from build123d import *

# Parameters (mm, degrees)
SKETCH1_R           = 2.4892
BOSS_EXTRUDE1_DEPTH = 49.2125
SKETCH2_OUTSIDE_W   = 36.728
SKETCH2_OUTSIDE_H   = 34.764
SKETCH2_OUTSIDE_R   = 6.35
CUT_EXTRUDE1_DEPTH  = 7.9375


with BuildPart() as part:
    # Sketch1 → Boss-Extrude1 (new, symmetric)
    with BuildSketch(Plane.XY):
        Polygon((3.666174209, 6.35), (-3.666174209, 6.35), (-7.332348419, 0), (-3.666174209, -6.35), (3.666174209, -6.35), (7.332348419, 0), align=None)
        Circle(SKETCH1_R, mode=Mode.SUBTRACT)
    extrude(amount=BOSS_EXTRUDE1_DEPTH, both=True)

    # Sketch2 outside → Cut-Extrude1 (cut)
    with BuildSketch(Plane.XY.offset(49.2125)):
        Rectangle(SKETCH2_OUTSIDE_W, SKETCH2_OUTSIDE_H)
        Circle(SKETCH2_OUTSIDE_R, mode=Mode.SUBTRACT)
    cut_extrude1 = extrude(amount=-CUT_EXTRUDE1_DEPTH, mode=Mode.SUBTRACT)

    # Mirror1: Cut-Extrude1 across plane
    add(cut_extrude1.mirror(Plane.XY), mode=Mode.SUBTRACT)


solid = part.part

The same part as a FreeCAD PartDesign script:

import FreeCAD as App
import Part
import Sketcher
from FreeCAD import Vector
Q = App.Units.Quantity

doc = App.newDocument("Part")
body = doc.addObject("PartDesign::Body", "Body")

sketch1 = body.newObject("Sketcher::SketchObject", "Sketch")
sketch1.AttachmentSupport = (doc.getObject("XY_Plane"), [""])
sketch1.MapMode = "FlatFace"
sketch1.addGeometry(Part.LineSegment(Vector(3.7, 6.3, 0), Vector(-3.7, 6.3, 0)), False)
sketch1.addGeometry(Part.LineSegment(Vector(-3.7, 6.3, 0), Vector(-7.3, 0, 0)), False)
sketch1.addGeometry(Part.LineSegment(Vector(-7.3, 0, 0), Vector(-3.7, -6.3, 0)), False)
sketch1.addGeometry(Part.LineSegment(Vector(-3.7, -6.3, 0), Vector(3.7, -6.3, 0)), False)
sketch1.addGeometry(Part.LineSegment(Vector(3.7, -6.3, 0), Vector(7.3, 0, 0)), False)
sketch1.addGeometry(Part.LineSegment(Vector(7.3, 0, 0), Vector(3.7, 6.3, 0)), False)
sketch1.addGeometry(Part.Circle(Vector(0, 0, 0), Vector(0, 0, 1), 2.5), False)
sketch1.addConstraint(Sketcher.Constraint("Coincident", 0, 2, 1, 1))
sketch1.addConstraint(Sketcher.Constraint("Coincident", 1, 2, 2, 1))
sketch1.addConstraint(Sketcher.Constraint("Coincident", 2, 2, 3, 1))
sketch1.addConstraint(Sketcher.Constraint("Coincident", 3, 2, 4, 1))
sketch1.addConstraint(Sketcher.Constraint("Coincident", 4, 2, 5, 1))
sketch1.addConstraint(Sketcher.Constraint("Coincident", 5, 2, 0, 1))
sketch1.addConstraint(Sketcher.Constraint("Horizontal", 0))
sketch1.addConstraint(Sketcher.Constraint("Horizontal", 3))
sketch1.addConstraint(Sketcher.Constraint("Coincident", 6, 3, -1, 1))
sketch1.addConstraint(Sketcher.Constraint("Symmetric", 0, 2, 3, 2, -1, 1))
sketch1.addConstraint(Sketcher.Constraint("Symmetric", 1, 2, 4, 2, -1, 1))
sketch1.addConstraint(Sketcher.Constraint("PointOnObject", 1, 2, -1))
sketch1.addConstraint(Sketcher.Constraint("Parallel", 2, 5))
sketch1.addConstraint(Sketcher.Constraint("Vertical", 0, 2, 2, 2))
sketch1.addConstraint(Sketcher.Constraint("Diameter", 6, Q("0.196 in")))
sketch1.addConstraint(Sketcher.Constraint("Angle", 1, Q("-120 deg")))
sketch1.addConstraint(Sketcher.Constraint("DistanceY", 2, 2, 0, 2, Q("0.5 in")))
sketch1.addConstraint(Sketcher.Constraint("DistanceX", 0, 2, 0, 1, Q("7.332348 mm")))
pad1 = body.newObject("PartDesign::Pad", "Pad")
pad1.Profile = sketch1
pad1.Length = Q("3.875 in")
pad1.Midplane = True

sketch2 = body.newObject("Sketcher::SketchObject", "Sketch001")
sketch2.AttachmentSupport = (doc.getObject("XY_Plane"), [""])
sketch2.MapMode = "FlatFace"
sketch2.AttachmentOffset = App.Placement(Vector(0, 0, 1.9375 * 25.4), App.Rotation())
sketch2.addGeometry(Part.LineSegment(Vector(-18, 17, 0), Vector(-18, -17, 0)), False)
sketch2.addGeometry(Part.LineSegment(Vector(-18, -17, 0), Vector(18, -17, 0)), False)
sketch2.addGeometry(Part.LineSegment(Vector(18, -17, 0), Vector(18, 17, 0)), False)
sketch2.addGeometry(Part.LineSegment(Vector(18, 17, 0), Vector(-18, 17, 0)), False)
sketch2.addGeometry(Part.Circle(Vector(0, 0, 0), Vector(0, 0, 1), 6), False)
sketch2.addConstraint(Sketcher.Constraint("Coincident", 0, 2, 1, 1))
sketch2.addConstraint(Sketcher.Constraint("Coincident", 1, 2, 2, 1))
sketch2.addConstraint(Sketcher.Constraint("Coincident", 2, 2, 3, 1))
sketch2.addConstraint(Sketcher.Constraint("Coincident", 3, 2, 0, 1))
sketch2.addConstraint(Sketcher.Constraint("Vertical", 0))
sketch2.addConstraint(Sketcher.Constraint("Horizontal", 1))
sketch2.addConstraint(Sketcher.Constraint("Vertical", 2))
sketch2.addConstraint(Sketcher.Constraint("Horizontal", 3))
sketch2.addConstraint(Sketcher.Constraint("Coincident", 4, 3, -1, 1))
sketch2.addConstraint(Sketcher.Constraint("Symmetric", 0, 2, 2, 2, -1, 1))
sketch2.addConstraint(Sketcher.Constraint("Diameter", 4, Q("0.5 in")))
sketch2.addConstraint(Sketcher.Constraint("DistanceX", 1, 1, 1, 2, Q("36.728 mm")))
sketch2.addConstraint(Sketcher.Constraint("DistanceY", 0, 2, 0, 1, Q("34.764 mm")))
pocket1 = body.newObject("PartDesign::Pocket", "Pocket")
pocket1.Profile = sketch2
pocket1.Length = Q("0.3125 in")
doc.recompute()

mirrored = body.newObject("PartDesign::Mirrored", "Mirrored")
mirrored.Originals = [pocket1]
mirrored.MirrorPlane = (doc.getObject("XY_Plane"), [""])
body.Tip = mirrored

doc.recompute()
